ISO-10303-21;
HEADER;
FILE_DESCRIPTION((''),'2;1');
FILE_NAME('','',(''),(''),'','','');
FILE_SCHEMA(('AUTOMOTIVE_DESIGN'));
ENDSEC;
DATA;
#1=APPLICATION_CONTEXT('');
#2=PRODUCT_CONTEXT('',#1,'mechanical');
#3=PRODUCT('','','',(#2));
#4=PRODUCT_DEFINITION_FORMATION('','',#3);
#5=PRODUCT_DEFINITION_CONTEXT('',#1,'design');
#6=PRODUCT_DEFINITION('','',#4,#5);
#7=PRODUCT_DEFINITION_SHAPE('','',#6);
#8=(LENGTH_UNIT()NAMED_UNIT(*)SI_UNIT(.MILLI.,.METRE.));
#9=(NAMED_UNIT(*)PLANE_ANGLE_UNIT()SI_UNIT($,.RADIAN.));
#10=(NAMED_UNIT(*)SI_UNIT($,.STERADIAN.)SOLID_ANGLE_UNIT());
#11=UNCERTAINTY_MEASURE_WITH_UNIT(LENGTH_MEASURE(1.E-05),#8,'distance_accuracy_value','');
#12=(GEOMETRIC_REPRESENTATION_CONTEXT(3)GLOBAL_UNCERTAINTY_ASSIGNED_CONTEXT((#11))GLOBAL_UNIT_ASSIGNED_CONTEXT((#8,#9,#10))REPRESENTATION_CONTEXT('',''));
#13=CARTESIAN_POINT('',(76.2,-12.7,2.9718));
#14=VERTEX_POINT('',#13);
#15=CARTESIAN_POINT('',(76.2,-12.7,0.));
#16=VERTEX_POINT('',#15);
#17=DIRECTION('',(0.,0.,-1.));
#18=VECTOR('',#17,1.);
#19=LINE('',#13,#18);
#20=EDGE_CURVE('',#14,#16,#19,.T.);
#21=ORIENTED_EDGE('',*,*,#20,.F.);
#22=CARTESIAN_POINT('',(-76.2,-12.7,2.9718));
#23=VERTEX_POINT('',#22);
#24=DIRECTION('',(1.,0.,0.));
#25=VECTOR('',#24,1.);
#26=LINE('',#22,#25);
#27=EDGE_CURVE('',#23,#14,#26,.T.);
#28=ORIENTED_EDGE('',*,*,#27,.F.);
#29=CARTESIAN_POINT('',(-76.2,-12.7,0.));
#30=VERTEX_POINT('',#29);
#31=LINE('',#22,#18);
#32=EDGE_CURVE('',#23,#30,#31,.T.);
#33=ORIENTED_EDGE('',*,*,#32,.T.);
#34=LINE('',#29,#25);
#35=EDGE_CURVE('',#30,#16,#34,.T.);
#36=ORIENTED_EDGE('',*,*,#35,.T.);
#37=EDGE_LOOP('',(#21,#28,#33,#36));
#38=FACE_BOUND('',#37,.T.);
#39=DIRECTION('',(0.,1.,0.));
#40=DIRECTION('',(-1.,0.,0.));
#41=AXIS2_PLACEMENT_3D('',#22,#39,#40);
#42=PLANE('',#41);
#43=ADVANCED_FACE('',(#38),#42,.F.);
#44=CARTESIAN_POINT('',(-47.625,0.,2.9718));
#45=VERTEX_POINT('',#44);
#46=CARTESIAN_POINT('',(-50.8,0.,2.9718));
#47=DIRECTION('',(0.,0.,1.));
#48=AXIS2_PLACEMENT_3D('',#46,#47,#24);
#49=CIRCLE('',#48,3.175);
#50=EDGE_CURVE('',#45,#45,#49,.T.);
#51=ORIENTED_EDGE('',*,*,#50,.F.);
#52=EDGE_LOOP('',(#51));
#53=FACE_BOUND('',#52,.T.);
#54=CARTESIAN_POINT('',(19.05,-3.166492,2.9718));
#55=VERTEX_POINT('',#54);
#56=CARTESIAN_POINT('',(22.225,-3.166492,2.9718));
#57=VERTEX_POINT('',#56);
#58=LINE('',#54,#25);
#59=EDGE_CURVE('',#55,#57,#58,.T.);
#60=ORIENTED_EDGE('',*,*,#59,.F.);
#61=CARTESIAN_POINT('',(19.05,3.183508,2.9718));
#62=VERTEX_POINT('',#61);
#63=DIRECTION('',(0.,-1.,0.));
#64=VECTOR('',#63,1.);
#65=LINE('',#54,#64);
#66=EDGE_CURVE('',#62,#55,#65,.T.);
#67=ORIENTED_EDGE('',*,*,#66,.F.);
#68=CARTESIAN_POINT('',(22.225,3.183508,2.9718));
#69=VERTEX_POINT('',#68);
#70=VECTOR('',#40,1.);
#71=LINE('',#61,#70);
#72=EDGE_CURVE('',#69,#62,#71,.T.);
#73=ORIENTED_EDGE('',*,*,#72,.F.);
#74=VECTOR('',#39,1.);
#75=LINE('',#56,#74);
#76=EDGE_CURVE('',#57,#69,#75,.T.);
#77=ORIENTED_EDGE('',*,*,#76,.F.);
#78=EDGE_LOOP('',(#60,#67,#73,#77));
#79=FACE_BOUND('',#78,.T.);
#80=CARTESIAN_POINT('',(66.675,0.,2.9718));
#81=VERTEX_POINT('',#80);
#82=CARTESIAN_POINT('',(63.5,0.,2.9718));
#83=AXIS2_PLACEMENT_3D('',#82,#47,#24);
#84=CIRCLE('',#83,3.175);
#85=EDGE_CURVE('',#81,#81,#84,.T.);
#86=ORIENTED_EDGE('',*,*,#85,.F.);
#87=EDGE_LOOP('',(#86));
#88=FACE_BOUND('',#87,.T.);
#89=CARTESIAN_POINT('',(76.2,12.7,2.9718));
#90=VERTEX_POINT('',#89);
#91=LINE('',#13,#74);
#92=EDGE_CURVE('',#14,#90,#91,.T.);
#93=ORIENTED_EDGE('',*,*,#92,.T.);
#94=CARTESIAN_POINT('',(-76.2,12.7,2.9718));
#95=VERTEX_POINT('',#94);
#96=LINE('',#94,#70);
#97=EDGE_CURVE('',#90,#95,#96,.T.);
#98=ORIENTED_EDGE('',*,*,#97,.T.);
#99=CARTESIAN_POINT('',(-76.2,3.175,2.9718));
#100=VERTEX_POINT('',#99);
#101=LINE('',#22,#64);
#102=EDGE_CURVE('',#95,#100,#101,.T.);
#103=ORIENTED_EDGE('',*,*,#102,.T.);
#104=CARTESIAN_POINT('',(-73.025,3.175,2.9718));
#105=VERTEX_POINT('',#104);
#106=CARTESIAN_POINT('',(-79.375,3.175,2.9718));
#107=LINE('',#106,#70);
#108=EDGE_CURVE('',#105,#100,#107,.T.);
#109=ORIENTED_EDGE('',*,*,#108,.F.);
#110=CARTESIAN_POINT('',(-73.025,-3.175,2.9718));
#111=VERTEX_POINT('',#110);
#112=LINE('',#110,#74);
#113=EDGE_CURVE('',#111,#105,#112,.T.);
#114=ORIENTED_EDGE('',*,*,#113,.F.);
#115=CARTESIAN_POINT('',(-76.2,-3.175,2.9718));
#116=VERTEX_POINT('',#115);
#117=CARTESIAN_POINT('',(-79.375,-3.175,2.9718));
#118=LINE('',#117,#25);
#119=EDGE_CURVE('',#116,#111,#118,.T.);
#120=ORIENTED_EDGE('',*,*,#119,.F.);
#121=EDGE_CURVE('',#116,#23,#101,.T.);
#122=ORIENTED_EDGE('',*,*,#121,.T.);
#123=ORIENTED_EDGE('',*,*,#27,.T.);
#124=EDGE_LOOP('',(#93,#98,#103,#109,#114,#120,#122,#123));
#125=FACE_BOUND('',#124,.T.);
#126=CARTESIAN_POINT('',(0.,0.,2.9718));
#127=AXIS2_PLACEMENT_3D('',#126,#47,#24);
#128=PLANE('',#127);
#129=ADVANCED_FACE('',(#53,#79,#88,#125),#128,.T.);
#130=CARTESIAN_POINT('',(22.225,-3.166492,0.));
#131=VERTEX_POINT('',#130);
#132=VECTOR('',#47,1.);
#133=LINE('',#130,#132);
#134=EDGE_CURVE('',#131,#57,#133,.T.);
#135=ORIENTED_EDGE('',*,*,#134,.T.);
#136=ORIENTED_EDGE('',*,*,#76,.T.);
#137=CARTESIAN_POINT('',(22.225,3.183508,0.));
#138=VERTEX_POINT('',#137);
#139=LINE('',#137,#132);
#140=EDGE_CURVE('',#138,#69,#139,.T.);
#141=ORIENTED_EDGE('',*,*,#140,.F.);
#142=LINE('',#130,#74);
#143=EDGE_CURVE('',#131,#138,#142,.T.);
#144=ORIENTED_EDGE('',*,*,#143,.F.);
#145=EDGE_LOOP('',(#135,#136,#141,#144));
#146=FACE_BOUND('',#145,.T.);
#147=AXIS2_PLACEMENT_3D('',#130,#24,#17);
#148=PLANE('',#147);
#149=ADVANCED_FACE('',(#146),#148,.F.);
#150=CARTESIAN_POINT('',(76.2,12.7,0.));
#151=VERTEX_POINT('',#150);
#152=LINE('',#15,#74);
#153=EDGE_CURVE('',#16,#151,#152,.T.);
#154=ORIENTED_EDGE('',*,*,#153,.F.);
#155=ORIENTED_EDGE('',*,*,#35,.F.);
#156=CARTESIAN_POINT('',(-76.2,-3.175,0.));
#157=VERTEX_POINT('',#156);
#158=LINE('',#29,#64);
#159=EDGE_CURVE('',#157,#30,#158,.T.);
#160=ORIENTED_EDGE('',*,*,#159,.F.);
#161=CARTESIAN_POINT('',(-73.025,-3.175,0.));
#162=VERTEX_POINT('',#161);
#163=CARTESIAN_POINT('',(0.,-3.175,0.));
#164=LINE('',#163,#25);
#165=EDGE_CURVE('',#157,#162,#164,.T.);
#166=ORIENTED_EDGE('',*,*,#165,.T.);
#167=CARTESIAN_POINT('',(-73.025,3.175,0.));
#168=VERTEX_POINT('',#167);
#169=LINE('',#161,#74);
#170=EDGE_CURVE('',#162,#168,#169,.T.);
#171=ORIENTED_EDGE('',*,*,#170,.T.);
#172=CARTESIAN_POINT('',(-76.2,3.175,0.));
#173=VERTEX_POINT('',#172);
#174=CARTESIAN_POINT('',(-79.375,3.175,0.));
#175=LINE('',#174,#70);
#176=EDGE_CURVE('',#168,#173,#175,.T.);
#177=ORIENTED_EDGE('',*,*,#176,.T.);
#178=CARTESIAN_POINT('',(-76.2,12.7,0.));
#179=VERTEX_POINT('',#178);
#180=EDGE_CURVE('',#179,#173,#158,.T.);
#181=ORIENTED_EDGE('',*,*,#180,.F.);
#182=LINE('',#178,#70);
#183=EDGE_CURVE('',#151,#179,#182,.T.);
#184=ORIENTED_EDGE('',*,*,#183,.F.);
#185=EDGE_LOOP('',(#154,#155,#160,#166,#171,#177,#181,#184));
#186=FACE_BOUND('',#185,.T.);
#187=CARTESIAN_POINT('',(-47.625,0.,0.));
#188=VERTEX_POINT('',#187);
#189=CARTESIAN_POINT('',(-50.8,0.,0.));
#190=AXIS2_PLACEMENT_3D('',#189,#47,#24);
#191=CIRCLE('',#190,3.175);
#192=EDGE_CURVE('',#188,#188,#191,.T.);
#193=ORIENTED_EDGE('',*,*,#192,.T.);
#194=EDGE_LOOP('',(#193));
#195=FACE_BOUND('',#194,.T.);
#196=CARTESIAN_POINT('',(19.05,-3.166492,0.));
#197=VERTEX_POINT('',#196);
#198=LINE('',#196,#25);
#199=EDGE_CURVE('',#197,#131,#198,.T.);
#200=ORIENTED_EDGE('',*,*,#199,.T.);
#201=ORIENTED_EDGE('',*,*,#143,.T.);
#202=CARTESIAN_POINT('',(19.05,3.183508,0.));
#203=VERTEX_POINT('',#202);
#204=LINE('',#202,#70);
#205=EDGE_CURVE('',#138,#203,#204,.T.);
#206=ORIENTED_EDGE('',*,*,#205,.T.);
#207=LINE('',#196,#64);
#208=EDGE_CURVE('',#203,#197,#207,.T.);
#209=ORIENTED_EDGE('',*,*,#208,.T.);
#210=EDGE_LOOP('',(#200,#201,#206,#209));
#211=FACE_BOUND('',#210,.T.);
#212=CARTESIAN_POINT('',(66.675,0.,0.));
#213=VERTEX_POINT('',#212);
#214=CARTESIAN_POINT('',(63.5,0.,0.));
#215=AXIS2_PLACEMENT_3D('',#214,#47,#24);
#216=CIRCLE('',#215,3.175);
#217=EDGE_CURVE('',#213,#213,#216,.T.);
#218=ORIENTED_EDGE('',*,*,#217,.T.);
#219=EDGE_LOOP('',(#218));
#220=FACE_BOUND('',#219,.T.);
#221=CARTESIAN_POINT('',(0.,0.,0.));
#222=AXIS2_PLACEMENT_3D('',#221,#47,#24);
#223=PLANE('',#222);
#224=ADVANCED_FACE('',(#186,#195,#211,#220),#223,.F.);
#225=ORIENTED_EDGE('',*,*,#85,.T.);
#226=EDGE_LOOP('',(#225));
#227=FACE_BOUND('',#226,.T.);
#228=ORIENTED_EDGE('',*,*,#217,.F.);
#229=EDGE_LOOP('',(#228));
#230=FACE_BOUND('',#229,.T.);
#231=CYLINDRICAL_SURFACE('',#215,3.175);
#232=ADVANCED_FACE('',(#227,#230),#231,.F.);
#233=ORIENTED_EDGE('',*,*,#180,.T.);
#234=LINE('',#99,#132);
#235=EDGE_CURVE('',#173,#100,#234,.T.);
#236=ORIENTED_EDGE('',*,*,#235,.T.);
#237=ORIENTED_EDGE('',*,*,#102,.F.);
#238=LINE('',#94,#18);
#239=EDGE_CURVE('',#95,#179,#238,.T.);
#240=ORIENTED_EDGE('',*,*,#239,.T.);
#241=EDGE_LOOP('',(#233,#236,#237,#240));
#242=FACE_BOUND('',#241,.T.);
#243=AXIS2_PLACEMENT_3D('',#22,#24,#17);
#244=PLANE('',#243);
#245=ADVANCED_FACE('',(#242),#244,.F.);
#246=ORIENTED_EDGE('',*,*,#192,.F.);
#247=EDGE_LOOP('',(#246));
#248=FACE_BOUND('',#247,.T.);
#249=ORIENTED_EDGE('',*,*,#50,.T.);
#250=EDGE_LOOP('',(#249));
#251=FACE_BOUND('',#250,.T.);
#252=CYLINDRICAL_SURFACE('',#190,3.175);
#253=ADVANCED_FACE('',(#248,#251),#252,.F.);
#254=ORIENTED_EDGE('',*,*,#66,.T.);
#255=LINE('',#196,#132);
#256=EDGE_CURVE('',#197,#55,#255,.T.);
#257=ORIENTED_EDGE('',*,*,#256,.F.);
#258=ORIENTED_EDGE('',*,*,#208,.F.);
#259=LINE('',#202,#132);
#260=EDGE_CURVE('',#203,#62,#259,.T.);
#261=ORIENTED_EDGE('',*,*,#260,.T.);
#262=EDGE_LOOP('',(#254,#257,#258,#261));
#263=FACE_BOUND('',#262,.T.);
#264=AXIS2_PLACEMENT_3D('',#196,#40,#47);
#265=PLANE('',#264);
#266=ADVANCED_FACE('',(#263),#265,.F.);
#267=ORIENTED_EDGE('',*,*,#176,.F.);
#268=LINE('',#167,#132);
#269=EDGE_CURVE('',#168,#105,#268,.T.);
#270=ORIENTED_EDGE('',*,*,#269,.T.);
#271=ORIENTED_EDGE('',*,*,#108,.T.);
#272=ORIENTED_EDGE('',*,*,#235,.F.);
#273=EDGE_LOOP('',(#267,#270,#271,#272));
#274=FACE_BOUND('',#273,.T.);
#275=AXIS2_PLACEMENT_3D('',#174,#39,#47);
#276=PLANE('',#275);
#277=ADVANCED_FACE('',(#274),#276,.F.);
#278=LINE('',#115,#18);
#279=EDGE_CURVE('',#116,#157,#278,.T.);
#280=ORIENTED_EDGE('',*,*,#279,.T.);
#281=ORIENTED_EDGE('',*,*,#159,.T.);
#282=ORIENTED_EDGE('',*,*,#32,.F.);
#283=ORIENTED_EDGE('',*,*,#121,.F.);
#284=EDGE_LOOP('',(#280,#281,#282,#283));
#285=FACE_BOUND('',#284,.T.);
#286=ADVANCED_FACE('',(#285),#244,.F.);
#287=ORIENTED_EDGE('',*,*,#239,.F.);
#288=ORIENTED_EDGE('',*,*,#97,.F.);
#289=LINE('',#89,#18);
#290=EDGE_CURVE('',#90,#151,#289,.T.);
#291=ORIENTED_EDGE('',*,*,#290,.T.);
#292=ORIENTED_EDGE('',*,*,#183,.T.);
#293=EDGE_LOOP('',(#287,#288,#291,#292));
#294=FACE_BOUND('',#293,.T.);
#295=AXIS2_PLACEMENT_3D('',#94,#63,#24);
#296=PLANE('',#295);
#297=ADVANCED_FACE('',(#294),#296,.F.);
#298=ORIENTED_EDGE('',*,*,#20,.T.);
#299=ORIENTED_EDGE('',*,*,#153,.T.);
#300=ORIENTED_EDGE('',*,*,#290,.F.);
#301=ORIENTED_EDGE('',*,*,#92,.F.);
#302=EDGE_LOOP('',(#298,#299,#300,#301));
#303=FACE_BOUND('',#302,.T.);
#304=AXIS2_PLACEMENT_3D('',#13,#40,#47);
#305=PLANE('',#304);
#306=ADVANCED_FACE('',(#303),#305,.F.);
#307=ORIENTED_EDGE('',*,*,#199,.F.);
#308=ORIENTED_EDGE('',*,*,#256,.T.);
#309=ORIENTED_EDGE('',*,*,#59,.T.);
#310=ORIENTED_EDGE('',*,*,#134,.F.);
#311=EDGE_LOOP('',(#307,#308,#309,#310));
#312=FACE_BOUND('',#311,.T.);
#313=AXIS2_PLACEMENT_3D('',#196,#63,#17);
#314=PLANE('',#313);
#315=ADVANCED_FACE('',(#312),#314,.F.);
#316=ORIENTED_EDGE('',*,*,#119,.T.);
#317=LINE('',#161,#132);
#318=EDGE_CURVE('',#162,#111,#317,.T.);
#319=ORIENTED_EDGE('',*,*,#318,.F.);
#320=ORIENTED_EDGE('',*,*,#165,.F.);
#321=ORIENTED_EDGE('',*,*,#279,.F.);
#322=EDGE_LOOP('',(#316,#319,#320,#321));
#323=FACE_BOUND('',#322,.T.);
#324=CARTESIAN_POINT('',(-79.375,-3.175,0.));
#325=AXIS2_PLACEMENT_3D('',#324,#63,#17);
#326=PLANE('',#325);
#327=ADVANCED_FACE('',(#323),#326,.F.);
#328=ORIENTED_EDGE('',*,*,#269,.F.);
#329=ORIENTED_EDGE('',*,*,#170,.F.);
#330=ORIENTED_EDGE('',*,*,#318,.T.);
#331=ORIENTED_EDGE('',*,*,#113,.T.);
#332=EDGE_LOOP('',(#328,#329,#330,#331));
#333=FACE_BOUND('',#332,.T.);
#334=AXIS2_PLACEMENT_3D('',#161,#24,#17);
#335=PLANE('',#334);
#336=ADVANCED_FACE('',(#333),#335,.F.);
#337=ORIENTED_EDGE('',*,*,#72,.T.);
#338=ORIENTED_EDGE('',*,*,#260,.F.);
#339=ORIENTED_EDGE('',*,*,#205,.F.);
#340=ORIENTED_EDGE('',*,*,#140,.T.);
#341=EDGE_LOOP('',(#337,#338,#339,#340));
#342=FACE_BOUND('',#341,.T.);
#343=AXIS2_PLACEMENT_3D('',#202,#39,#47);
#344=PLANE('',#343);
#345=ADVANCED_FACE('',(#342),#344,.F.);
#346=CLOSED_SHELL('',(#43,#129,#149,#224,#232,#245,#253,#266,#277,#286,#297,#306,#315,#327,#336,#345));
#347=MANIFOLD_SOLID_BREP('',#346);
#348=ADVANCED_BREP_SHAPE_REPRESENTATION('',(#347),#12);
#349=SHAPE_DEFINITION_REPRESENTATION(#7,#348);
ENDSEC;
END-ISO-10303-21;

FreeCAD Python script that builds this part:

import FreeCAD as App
import Part
import Sketcher
Q = App.Units.Quantity


def add_polygon(sketch, points):
    """Adds a closed chain of lines whose ends are joined by coincident constraints."""
    first, n = sketch.GeometryCount, len(points)
    for a, b in zip(points, points[1:] + points[:1]):
        sketch.addGeometry(Part.LineSegment(App.Vector(*a, 0), App.Vector(*b, 0)), False)
    for i in range(n):
        sketch.addConstraint(Sketcher.Constraint("Coincident", first + i, 2, first + (i + 1) % n, 1))

doc = App.newDocument("Part")
body = doc.addObject("PartDesign::Body", "Body")

sketch1 = body.newObject("Sketcher::SketchObject", "Sketch")
sketch1.AttachmentSupport = (doc.getObject("XY_Plane"), [""])
sketch1.MapMode = "FlatFace"
add_polygon(sketch1, [(-76, -13), (76, -13), (76, 13), (-76, 13)])
sketch1.addConstraint(Sketcher.Constraint("Horizontal", 0))
sketch1.addConstraint(Sketcher.Constraint("Vertical", 1))
sketch1.addConstraint(Sketcher.Constraint("Horizontal", 2))
sketch1.addConstraint(Sketcher.Constraint("Vertical", 3))
sketch1.addConstraint(Sketcher.Constraint("Symmetric", 0, 2, 2, 2, -1, 1))
sketch1.addConstraint(Sketcher.Constraint("DistanceX", 0, 1, 0, 2, Q("6 in")))
sketch1.addConstraint(Sketcher.Constraint("DistanceY", 1, 1, 1, 2, Q("1 in")))
pad1 = body.newObject("PartDesign::Pad", "Pad")
pad1.Profile = sketch1
pad1.Length = Q("0.117 in")

sketch2 = body.newObject("Sketcher::SketchObject", "Sketch001")
sketch2.AttachmentSupport = (doc.getObject("XY_Plane"), [""])
sketch2.MapMode = "FlatFace"
sketch2.AttachmentOffset = App.Placement(App.Vector(0, 0, 0.117 * 25.4), App.Rotation())
sketch2.addGeometry(Part.Circle(App.Vector(-50.8, 0, 0), App.Vector(0, 0, 1), 3.2), False)
sketch2.addGeometry(Part.Circle(App.Vector(63.5, 0, 0), App.Vector(0, 0, 1), 3.2), False)
add_polygon(sketch2, [(-79.4, 3.2), (-79.4, -3.2), (-73, -3.2), (-73, 3.2)])
add_polygon(sketch2, [(19.1, 3.2), (19.1, -3.2), (22.2, -3.2), (22.2, 3.2)])
sketch2.addConstraint(Sketcher.Constraint("Vertical", 2))
sketch2.addConstraint(Sketcher.Constraint("Horizontal", 3))
sketch2.addConstraint(Sketcher.Constraint("Vertical", 4))
sketch2.addConstraint(Sketcher.Constraint("Horizontal", 5))
sketch2.addConstraint(Sketcher.Constraint("Vertical", 6))
sketch2.addConstraint(Sketcher.Constraint("Horizontal", 7))
sketch2.addConstraint(Sketcher.Constraint("Vertical", 8))
sketch2.addConstraint(Sketcher.Constraint("Horizontal", 9))
sketch2.addConstraint(Sketcher.Constraint("Equal", 0, 1))
sketch2.addConstraint(Sketcher.Constraint("PointOnObject", 0, 3, -1))
sketch2.addConstraint(Sketcher.Constraint("PointOnObject", 1, 3, -1))
sketch2.addConstraint(Sketcher.Constraint("Equal", 5, 2))
sketch2.addConstraint(Sketcher.Constraint("Equal", 4, 6))
sketch2.addConstraint(Sketcher.Constraint("Diameter", 0, Q("0.25 in")))
sketch2.addConstraint(Sketcher.Constraint("DistanceX", 0, 3, -1, 1, Q("2 in")))
sketch2.addConstraint(Sketcher.Constraint("DistanceX", 3, 1, 3, 2, Q("0.25 in")))
sketch2.addConstraint(Sketcher.Constraint("DistanceX", -1, 1, 1, 3, Q("2.5 in")))
sketch2.addConstraint(Sketcher.Constraint("DistanceX", 7, 1, 7, 2, Q("0.125 in")))
sketch2.addConstraint(Sketcher.Constraint("DistanceX", -1, 1, 6, 2, Q("0.75 in")))
sketch2.addConstraint(Sketcher.Constraint("DistanceX", 3, 2, 7, 2, Q("3.75 in")))
sketch2.addConstraint(Sketcher.Constraint("DistanceY", 2, 2, -1, 1, Q("0.125 in")))
sketch2.addConstraint(Sketcher.Constraint("DistanceY", 6, 2, -1, 1, Q("3.166492 mm")))
pocket1 = body.newObject("PartDesign::Pocket", "Pocket")
pocket1.Profile = sketch2
pocket1.Type = "ThroughAll"

doc.recompute()
